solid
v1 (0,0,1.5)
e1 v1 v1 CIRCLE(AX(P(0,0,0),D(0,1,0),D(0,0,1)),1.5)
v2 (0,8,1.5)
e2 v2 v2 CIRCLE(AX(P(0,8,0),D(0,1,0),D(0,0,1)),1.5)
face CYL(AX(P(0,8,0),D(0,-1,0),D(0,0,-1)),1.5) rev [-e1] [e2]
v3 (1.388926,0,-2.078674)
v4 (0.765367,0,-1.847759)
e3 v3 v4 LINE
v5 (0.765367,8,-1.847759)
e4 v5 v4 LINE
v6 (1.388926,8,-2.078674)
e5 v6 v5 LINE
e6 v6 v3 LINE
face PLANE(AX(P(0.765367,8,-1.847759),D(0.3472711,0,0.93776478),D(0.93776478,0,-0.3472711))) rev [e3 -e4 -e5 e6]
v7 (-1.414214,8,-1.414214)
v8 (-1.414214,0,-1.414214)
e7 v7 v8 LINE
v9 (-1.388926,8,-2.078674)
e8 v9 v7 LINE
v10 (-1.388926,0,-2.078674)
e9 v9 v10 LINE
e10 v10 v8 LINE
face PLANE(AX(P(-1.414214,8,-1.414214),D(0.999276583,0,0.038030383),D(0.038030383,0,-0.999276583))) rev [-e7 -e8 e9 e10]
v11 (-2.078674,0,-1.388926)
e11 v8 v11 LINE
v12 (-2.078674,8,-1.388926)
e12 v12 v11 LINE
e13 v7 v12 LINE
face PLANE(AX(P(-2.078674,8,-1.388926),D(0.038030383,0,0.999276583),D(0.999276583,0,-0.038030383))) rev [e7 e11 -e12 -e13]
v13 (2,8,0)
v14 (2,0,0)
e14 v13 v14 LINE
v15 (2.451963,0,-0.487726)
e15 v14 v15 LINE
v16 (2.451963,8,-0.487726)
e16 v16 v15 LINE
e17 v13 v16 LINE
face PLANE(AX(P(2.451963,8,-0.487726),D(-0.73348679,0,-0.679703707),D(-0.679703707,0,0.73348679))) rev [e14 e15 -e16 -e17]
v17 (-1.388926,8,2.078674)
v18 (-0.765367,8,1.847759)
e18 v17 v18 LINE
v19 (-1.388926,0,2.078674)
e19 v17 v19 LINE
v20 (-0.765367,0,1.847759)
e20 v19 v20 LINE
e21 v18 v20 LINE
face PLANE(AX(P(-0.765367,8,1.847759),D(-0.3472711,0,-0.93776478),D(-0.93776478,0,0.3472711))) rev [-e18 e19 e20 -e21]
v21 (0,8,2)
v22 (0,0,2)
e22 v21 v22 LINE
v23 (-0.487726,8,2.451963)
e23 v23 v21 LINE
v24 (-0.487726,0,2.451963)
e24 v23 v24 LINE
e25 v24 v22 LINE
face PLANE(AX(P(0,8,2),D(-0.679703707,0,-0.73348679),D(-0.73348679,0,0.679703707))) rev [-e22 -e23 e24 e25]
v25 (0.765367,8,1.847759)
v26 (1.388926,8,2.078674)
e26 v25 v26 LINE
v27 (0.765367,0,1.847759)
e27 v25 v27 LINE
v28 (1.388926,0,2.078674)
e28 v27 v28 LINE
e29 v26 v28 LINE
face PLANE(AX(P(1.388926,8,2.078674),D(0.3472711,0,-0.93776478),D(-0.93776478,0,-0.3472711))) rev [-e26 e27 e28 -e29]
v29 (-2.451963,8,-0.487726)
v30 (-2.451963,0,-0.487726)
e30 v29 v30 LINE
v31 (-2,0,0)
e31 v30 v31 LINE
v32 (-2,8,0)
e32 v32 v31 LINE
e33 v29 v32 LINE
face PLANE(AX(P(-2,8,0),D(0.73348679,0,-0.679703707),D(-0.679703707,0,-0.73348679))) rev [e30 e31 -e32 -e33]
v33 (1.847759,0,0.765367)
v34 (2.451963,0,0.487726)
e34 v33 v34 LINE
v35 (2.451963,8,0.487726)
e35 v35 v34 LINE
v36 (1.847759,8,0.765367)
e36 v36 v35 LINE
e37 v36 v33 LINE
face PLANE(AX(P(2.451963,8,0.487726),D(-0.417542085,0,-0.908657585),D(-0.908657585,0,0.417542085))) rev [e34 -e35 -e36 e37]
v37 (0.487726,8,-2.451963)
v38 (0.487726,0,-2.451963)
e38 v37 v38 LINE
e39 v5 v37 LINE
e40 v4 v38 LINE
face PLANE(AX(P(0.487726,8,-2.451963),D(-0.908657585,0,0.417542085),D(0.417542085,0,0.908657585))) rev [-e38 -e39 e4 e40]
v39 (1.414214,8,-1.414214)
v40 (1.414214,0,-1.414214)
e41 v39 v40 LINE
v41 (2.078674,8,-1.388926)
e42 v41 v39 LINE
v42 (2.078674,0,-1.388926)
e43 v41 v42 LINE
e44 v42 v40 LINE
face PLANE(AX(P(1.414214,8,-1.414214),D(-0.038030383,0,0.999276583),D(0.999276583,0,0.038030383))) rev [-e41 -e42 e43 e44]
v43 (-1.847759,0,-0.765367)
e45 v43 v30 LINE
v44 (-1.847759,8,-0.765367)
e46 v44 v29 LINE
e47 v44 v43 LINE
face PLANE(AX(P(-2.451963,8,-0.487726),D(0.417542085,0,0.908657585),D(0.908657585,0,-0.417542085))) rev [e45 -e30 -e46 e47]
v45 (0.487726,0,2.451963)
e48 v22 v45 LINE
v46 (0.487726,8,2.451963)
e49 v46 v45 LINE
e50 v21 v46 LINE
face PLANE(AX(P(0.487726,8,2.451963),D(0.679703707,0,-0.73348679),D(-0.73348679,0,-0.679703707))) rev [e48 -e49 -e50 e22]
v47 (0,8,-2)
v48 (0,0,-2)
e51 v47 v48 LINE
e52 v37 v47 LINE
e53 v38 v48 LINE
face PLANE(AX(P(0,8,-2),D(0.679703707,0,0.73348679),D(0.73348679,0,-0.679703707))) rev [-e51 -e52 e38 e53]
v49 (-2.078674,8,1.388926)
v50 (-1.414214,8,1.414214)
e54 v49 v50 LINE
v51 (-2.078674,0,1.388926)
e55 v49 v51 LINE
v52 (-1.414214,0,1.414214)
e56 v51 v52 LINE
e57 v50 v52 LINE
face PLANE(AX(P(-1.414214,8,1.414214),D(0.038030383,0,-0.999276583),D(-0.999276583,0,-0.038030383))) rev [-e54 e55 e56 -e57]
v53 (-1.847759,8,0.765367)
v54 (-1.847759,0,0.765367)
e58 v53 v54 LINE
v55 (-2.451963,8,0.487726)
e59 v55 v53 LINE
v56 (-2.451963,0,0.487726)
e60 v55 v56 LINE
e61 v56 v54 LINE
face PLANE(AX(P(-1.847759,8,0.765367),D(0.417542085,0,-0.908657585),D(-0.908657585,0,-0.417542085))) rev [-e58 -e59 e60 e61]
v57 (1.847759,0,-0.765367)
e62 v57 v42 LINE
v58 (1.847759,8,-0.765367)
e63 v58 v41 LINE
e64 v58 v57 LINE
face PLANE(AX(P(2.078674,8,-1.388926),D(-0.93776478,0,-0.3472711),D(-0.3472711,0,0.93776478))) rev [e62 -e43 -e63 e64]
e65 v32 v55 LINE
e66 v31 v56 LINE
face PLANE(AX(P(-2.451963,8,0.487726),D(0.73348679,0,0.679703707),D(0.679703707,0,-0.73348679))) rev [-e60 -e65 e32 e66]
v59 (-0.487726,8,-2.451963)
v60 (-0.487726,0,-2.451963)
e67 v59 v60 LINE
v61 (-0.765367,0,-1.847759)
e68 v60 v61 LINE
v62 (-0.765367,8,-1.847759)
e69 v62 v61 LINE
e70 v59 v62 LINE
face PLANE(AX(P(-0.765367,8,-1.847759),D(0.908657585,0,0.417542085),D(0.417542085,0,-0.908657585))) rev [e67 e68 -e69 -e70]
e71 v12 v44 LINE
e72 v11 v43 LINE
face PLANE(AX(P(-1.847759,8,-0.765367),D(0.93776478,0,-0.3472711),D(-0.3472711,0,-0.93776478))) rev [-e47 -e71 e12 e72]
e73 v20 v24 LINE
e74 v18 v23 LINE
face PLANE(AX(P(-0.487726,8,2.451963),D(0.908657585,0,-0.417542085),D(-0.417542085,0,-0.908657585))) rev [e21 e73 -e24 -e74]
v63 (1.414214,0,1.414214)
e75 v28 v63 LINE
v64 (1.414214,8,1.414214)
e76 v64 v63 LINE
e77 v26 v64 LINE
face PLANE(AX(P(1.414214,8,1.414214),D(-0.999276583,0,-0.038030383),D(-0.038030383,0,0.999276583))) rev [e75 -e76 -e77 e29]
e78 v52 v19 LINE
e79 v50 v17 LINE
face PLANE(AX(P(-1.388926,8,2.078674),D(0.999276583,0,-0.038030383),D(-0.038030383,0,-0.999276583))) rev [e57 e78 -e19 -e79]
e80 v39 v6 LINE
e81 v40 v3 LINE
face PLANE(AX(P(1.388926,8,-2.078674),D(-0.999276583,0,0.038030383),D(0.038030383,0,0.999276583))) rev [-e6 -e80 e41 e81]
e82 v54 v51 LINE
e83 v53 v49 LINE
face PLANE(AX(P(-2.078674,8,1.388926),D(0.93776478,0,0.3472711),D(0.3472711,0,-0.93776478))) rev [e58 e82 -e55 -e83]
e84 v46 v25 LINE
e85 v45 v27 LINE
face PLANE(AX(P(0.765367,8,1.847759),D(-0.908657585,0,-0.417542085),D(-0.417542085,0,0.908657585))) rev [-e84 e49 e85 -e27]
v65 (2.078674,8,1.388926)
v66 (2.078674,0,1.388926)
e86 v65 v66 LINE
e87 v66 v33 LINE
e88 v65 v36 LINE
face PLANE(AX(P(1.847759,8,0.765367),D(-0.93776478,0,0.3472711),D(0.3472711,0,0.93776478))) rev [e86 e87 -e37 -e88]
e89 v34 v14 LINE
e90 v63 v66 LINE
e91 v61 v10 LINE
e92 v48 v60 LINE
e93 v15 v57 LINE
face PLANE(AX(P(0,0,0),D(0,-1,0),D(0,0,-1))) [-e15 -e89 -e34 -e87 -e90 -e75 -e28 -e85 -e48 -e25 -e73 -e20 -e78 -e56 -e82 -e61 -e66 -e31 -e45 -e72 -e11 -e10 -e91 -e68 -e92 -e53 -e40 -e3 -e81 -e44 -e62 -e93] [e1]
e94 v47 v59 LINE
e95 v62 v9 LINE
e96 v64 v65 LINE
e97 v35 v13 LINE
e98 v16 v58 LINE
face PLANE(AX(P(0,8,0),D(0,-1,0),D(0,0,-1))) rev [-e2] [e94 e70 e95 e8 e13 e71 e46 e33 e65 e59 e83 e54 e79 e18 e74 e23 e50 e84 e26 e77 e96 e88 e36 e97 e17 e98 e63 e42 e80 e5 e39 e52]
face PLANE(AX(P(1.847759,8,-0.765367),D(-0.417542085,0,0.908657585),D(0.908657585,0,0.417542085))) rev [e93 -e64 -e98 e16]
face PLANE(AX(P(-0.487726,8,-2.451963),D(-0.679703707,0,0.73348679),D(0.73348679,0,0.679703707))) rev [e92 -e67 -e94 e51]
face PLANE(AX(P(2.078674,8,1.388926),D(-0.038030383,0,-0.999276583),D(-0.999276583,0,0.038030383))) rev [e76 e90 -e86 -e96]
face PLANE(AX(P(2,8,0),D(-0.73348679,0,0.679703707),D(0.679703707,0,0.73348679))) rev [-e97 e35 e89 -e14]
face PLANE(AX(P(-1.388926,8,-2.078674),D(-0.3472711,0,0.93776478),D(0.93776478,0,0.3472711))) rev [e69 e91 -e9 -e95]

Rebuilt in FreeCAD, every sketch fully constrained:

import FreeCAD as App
import Part
import Sketcher

V = App.Vector


def add_polygon(sketch, points):
    """Adds a closed chain of lines whose ends are joined by coincident constraints."""
    first, n = sketch.GeometryCount, len(points)
    for a, b in zip(points, points[1:] + points[:1]):
        sketch.addGeometry(Part.LineSegment(App.Vector(*a, 0), App.Vector(*b, 0)), False)
    for i in range(n):
        sketch.addConstraint(Sketcher.Constraint("Coincident", first + i, 2, first + (i + 1) % n, 1))

doc = App.newDocument("Part")
params = doc.addObject("Spreadsheet::Sheet", "Params")
for row, (alias, value) in enumerate([
    ("sketch1_diameter", "3 mm"),
    ("pad1_length", "8 mm"),
], start=1):
    params.set(f"A{row}", alias)
    params.set(f"B{row}", "=" + value)
    params.setAlias(f"B{row}", alias)

body = doc.addObject("PartDesign::Body", "Body")

# Sketch on XZ plane
sketch1 = doc.addObject("Sketcher::SketchObject", "Sketch")
body.addObject(sketch1)
sketch1.AttachmentSupport = (doc.XZ_Plane, [""])
sketch1.MapMode = "FlatFace"
add_polygon(sketch1, [(0.5, -2.5), (0, -2), (-0.5, -2.5), (-0.8, -1.8), (-1.4, -2.1), (-1.4, -1.4), (-2.1, -1.4), (-1.8, -0.8), (-2.5, -0.5), (-2, 0), (-2.5, 0.5), (-1.8, 0.8), (-2.1, 1.4), (-1.4, 1.4), (-1.4, 2.1), (-0.8, 1.8), (-0.5, 2.5), (0, 2), (0.5, 2.5), (0.8, 1.8), (1.4, 2.1), (1.4, 1.4), (2.1, 1.4), (1.8, 0.8), (2.5, 0.5), (2, 0), (2.5, -0.5), (1.8, -0.8), (2.1, -1.4), (1.4, -1.4), (1.4, -2.1), (0.8, -1.8)])  # lines 0-31
sketch1.addGeometry(Part.Circle(V(0, 0, 0), V(0, 0, 1), 1.5), False)  # 32
sketch1.addConstraint(Sketcher.Constraint("Coincident", 32, 3, -1, 1))
sketch1.addConstraint(Sketcher.Constraint("Symmetric", 0, 2, 16, 2, -1, 1))
sketch1.addConstraint(Sketcher.Constraint("Symmetric", 1, 2, 17, 2, -1, 1))
sketch1.addConstraint(Sketcher.Constraint("Symmetric", 2, 2, 18, 2, -1, 1))
sketch1.addConstraint(Sketcher.Constraint("Symmetric", 3, 2, 19, 2, -1, 1))
sketch1.addConstraint(Sketcher.Constraint("Symmetric", 4, 2, 20, 2, -1, 1))
sketch1.addConstraint(Sketcher.Constraint("Symmetric", 5, 2, 21, 2, -1, 1))
sketch1.addConstraint(Sketcher.Constraint("Symmetric", 6, 2, 22, 2, -1, 1))
sketch1.addConstraint(Sketcher.Constraint("Symmetric", 7, 2, 23, 2, -1, 1))
sketch1.addConstraint(Sketcher.Constraint("Symmetric", 8, 2, 24, 2, -1, 1))
sketch1.addConstraint(Sketcher.Constraint("Symmetric", 9, 2, 25, 2, -1, 1))
sketch1.addConstraint(Sketcher.Constraint("Symmetric", 10, 2, 26, 2, -1, 1))
sketch1.addConstraint(Sketcher.Constraint("Symmetric", 11, 2, 27, 2, -1, 1))
sketch1.addConstraint(Sketcher.Constraint("Symmetric", 12, 2, 28, 2, -1, 1))
sketch1.addConstraint(Sketcher.Constraint("Symmetric", 13, 2, 29, 2, -1, 1))
sketch1.addConstraint(Sketcher.Constraint("Symmetric", 14, 2, 30, 2, -1, 1))
sketch1.addConstraint(Sketcher.Constraint("Symmetric", 15, 2, 31, 2, -1, 1))
sketch1.addConstraint(Sketcher.Constraint("Symmetric", 15, 2, 17, 2, -2))
sketch1.addConstraint(Sketcher.Constraint("Symmetric", 14, 2, 18, 2, -2))
sketch1.addConstraint(Sketcher.Constraint("Symmetric", 13, 2, 19, 2, -2))
sketch1.addConstraint(Sketcher.Constraint("Symmetric", 12, 2, 20, 2, -2))
sketch1.addConstraint(Sketcher.Constraint("Symmetric", 11, 2, 21, 2, -2))
sketch1.addConstraint(Sketcher.Constraint("Symmetric", 10, 2, 22, 2, -2))
sketch1.addConstraint(Sketcher.Constraint("Symmetric", 9, 2, 23, 2, -2))
sketch1.addConstraint(Sketcher.Constraint("PointOnObject", 0, 2, -2))
sketch1.addConstraint(Sketcher.Constraint("PointOnObject", 8, 2, -1))
sketch1.addConstraint(Sketcher.Constraint("Perpendicular", 0, 8))
sketch1.addConstraint(Sketcher.Constraint("Perpendicular", 2, 10))
sketch1.addConstraint(Sketcher.Constraint("Perpendicular", 3, 11))
sketch1.addConstraint(Sketcher.Constraint("Perpendicular", 4, 12))
sketch1.addConstraint(Sketcher.Constraint("Equal", 1, 2))
sketch1.addConstraint(Sketcher.Constraint("Equal", 2, 3))
sketch1.addConstraint(Sketcher.Constraint("Equal", 3, 4))
sketch1.addConstraint(Sketcher.Constraint("Equal", 4, 5))
sketch1.addConstraint(Sketcher.Constraint("Equal", 5, 6))
sketch1.addConstraint(Sketcher.Constraint("Equal", 6, 7))
sketch1.addConstraint(Sketcher.Constraint("Equal", 7, 8))
sketch1.addConstraint(Sketcher.Constraint("Diameter", 32, 3.0))
sketch1.addConstraint(Sketcher.Constraint("DistanceY", 0, 2, -1, 1, 2.0))
sketch1.addConstraint(Sketcher.Constraint("DistanceX", 3, 2, 1, 2, 0.9012))
sketch1.addConstraint(Sketcher.Constraint("Distance", 0, 0.664941))
sketch1.addConstraint(Sketcher.Constraint("DistanceY", 2, 2, -1, 1, 1.847759))
sketch1.addConstraint(Sketcher.Constraint("DistanceX", 2, 2, 1, 2, 0.277641))
sketch1.setExpression("Constraints[69]", "Params.sketch1_diameter")
pad1 = doc.addObject("PartDesign::Pad", "Pad")
body.addObject(pad1)
pad1.Profile = sketch1
pad1.setExpression("Length", "Params.pad1_length")
pad1.Reversed = True

doc.recompute()
